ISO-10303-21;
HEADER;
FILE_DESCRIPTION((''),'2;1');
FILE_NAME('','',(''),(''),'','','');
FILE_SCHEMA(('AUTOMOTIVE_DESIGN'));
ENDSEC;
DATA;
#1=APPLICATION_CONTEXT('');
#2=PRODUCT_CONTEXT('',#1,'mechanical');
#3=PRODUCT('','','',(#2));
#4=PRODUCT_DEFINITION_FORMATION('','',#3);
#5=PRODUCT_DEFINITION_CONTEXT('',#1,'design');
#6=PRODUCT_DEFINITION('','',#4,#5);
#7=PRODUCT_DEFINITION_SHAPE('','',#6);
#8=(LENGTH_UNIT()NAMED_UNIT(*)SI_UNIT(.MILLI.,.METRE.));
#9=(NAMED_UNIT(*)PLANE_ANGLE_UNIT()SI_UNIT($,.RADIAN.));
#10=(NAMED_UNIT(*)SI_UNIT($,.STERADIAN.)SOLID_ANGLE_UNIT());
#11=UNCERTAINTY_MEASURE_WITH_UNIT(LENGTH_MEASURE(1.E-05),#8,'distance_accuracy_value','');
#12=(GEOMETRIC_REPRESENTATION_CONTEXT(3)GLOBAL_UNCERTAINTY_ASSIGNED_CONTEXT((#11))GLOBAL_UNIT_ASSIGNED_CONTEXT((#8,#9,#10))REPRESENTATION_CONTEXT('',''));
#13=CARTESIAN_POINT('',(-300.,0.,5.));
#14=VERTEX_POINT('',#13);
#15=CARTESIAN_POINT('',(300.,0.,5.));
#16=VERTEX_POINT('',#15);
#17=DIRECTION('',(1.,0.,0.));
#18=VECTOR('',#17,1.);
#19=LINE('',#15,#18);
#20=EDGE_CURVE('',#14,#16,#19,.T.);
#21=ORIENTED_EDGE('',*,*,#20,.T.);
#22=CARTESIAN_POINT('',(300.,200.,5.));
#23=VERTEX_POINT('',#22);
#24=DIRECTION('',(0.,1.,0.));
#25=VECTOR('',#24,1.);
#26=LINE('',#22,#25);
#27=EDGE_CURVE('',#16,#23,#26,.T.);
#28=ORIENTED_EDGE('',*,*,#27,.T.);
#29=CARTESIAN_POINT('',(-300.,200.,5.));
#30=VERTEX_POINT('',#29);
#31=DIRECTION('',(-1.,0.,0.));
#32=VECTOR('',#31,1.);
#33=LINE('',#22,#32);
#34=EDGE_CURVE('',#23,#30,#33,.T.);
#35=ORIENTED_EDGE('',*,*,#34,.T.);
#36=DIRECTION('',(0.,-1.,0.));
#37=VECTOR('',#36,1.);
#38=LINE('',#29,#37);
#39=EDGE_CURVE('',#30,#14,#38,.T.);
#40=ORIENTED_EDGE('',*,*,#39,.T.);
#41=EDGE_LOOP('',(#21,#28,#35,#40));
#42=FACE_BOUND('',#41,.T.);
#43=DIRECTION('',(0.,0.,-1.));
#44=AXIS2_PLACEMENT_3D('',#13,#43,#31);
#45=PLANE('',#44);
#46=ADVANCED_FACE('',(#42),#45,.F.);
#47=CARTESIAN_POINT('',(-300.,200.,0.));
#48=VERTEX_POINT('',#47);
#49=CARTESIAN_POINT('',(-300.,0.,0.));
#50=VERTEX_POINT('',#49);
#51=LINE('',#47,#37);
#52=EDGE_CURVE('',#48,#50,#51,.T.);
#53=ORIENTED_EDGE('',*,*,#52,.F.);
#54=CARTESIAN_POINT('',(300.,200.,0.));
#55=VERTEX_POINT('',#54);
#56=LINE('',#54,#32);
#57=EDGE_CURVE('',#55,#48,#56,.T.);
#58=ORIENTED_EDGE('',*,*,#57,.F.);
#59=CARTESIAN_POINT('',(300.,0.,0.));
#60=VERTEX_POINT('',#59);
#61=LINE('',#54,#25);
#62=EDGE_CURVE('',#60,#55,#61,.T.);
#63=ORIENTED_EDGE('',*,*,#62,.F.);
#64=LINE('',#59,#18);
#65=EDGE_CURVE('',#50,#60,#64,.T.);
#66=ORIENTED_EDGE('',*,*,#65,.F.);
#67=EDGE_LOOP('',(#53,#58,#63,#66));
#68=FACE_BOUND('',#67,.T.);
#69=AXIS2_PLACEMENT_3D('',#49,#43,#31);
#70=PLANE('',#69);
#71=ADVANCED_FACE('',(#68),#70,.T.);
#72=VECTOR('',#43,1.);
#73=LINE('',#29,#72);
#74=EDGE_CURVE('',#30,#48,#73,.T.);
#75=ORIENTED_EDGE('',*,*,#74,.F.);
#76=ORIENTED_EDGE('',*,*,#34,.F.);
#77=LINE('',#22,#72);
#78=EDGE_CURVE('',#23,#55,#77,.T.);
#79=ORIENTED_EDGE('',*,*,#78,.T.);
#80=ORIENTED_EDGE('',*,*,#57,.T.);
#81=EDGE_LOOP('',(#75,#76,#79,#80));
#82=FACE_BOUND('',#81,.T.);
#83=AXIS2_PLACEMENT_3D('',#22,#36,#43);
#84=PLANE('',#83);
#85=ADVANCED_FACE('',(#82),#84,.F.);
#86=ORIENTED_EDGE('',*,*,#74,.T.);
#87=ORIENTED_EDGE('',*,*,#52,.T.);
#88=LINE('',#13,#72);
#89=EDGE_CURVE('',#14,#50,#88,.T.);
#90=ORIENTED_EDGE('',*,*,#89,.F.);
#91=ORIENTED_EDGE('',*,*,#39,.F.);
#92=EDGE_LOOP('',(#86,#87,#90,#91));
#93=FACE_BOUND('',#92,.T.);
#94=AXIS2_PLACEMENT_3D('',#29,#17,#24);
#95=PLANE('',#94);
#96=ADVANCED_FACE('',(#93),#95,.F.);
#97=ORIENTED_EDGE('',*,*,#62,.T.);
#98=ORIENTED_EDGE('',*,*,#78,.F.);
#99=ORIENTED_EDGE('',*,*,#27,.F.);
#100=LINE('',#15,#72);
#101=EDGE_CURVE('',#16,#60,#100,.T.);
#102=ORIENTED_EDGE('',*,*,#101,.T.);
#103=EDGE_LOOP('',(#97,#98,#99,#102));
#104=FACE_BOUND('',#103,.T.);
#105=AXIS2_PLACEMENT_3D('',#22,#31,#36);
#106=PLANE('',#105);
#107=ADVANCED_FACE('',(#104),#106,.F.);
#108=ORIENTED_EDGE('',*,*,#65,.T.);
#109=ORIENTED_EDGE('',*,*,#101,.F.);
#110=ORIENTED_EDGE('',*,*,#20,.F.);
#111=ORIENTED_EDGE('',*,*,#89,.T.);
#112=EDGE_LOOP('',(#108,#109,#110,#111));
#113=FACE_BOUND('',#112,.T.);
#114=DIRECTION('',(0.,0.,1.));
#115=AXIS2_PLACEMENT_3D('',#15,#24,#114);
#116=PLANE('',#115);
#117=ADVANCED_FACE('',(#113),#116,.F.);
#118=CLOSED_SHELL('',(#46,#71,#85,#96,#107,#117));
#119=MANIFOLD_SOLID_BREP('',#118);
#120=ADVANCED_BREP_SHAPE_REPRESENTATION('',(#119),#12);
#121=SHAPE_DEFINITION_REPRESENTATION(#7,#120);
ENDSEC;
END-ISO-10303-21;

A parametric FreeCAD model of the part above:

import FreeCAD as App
import Part
import Sketcher

doc = App.newDocument("Part")
params = doc.addObject("Spreadsheet::Sheet", "Params")
for row, (alias, value) in enumerate([
    ("sketch1_width", "600 mm"),
    ("sketch1_height", "200 mm"),
    ("pad1_length", "5 mm"),
], start=1):
    params.set(f"A{row}", alias)
    params.set(f"B{row}", "=" + value)
    params.setAlias(f"B{row}", alias)

body = doc.addObject("PartDesign::Body", "Body")

sketch1 = body.newObject("Sketcher::SketchObject", "Sketch")
sketch1.AttachmentSupport = (doc.getObject("XY_Plane"), [""])
sketch1.MapMode = "FlatFace"
sketch1.addGeometry([
    Part.LineSegment(App.Vector(-300, 200, 0), App.Vector(-300, 0, 0)),
    Part.LineSegment(App.Vector(-300, 0, 0), App.Vector(300, 0, 0)),
    Part.LineSegment(App.Vector(300, 0, 0), App.Vector(300, 200, 0)),
    Part.LineSegment(App.Vector(300, 200, 0), App.Vector(-300, 200, 0)),
], False)
sketch1.addConstraint([
    Sketcher.Constraint("Coincident", 0, 2, 1, 1),
    Sketcher.Constraint("Coincident", 1, 2, 2, 1),
    Sketcher.Constraint("Coincident", 2, 2, 3, 1),
    Sketcher.Constraint("Coincident", 3, 2, 0, 1),
    Sketcher.Constraint("Vertical", 0),
    Sketcher.Constraint("Horizontal", 1),
    Sketcher.Constraint("Vertical", 2),
    Sketcher.Constraint("Horizontal", 3),
    Sketcher.Constraint("Symmetric", 0, 2, 1, 2, -1, 1),
    Sketcher.Constraint("DistanceX", 1, 1, 1, 2, 600.0),
    Sketcher.Constraint("DistanceY", 0, 2, 0, 1, 200.0),
])
sketch1.setExpression("Constraints[9]", "Params.sketch1_width")
sketch1.setExpression("Constraints[10]", "Params.sketch1_height")
pad1 = body.newObject("PartDesign::Pad", "Pad")
pad1.Profile = sketch1
pad1.setExpression("Length", "Params.pad1_length")

doc.recompute()
